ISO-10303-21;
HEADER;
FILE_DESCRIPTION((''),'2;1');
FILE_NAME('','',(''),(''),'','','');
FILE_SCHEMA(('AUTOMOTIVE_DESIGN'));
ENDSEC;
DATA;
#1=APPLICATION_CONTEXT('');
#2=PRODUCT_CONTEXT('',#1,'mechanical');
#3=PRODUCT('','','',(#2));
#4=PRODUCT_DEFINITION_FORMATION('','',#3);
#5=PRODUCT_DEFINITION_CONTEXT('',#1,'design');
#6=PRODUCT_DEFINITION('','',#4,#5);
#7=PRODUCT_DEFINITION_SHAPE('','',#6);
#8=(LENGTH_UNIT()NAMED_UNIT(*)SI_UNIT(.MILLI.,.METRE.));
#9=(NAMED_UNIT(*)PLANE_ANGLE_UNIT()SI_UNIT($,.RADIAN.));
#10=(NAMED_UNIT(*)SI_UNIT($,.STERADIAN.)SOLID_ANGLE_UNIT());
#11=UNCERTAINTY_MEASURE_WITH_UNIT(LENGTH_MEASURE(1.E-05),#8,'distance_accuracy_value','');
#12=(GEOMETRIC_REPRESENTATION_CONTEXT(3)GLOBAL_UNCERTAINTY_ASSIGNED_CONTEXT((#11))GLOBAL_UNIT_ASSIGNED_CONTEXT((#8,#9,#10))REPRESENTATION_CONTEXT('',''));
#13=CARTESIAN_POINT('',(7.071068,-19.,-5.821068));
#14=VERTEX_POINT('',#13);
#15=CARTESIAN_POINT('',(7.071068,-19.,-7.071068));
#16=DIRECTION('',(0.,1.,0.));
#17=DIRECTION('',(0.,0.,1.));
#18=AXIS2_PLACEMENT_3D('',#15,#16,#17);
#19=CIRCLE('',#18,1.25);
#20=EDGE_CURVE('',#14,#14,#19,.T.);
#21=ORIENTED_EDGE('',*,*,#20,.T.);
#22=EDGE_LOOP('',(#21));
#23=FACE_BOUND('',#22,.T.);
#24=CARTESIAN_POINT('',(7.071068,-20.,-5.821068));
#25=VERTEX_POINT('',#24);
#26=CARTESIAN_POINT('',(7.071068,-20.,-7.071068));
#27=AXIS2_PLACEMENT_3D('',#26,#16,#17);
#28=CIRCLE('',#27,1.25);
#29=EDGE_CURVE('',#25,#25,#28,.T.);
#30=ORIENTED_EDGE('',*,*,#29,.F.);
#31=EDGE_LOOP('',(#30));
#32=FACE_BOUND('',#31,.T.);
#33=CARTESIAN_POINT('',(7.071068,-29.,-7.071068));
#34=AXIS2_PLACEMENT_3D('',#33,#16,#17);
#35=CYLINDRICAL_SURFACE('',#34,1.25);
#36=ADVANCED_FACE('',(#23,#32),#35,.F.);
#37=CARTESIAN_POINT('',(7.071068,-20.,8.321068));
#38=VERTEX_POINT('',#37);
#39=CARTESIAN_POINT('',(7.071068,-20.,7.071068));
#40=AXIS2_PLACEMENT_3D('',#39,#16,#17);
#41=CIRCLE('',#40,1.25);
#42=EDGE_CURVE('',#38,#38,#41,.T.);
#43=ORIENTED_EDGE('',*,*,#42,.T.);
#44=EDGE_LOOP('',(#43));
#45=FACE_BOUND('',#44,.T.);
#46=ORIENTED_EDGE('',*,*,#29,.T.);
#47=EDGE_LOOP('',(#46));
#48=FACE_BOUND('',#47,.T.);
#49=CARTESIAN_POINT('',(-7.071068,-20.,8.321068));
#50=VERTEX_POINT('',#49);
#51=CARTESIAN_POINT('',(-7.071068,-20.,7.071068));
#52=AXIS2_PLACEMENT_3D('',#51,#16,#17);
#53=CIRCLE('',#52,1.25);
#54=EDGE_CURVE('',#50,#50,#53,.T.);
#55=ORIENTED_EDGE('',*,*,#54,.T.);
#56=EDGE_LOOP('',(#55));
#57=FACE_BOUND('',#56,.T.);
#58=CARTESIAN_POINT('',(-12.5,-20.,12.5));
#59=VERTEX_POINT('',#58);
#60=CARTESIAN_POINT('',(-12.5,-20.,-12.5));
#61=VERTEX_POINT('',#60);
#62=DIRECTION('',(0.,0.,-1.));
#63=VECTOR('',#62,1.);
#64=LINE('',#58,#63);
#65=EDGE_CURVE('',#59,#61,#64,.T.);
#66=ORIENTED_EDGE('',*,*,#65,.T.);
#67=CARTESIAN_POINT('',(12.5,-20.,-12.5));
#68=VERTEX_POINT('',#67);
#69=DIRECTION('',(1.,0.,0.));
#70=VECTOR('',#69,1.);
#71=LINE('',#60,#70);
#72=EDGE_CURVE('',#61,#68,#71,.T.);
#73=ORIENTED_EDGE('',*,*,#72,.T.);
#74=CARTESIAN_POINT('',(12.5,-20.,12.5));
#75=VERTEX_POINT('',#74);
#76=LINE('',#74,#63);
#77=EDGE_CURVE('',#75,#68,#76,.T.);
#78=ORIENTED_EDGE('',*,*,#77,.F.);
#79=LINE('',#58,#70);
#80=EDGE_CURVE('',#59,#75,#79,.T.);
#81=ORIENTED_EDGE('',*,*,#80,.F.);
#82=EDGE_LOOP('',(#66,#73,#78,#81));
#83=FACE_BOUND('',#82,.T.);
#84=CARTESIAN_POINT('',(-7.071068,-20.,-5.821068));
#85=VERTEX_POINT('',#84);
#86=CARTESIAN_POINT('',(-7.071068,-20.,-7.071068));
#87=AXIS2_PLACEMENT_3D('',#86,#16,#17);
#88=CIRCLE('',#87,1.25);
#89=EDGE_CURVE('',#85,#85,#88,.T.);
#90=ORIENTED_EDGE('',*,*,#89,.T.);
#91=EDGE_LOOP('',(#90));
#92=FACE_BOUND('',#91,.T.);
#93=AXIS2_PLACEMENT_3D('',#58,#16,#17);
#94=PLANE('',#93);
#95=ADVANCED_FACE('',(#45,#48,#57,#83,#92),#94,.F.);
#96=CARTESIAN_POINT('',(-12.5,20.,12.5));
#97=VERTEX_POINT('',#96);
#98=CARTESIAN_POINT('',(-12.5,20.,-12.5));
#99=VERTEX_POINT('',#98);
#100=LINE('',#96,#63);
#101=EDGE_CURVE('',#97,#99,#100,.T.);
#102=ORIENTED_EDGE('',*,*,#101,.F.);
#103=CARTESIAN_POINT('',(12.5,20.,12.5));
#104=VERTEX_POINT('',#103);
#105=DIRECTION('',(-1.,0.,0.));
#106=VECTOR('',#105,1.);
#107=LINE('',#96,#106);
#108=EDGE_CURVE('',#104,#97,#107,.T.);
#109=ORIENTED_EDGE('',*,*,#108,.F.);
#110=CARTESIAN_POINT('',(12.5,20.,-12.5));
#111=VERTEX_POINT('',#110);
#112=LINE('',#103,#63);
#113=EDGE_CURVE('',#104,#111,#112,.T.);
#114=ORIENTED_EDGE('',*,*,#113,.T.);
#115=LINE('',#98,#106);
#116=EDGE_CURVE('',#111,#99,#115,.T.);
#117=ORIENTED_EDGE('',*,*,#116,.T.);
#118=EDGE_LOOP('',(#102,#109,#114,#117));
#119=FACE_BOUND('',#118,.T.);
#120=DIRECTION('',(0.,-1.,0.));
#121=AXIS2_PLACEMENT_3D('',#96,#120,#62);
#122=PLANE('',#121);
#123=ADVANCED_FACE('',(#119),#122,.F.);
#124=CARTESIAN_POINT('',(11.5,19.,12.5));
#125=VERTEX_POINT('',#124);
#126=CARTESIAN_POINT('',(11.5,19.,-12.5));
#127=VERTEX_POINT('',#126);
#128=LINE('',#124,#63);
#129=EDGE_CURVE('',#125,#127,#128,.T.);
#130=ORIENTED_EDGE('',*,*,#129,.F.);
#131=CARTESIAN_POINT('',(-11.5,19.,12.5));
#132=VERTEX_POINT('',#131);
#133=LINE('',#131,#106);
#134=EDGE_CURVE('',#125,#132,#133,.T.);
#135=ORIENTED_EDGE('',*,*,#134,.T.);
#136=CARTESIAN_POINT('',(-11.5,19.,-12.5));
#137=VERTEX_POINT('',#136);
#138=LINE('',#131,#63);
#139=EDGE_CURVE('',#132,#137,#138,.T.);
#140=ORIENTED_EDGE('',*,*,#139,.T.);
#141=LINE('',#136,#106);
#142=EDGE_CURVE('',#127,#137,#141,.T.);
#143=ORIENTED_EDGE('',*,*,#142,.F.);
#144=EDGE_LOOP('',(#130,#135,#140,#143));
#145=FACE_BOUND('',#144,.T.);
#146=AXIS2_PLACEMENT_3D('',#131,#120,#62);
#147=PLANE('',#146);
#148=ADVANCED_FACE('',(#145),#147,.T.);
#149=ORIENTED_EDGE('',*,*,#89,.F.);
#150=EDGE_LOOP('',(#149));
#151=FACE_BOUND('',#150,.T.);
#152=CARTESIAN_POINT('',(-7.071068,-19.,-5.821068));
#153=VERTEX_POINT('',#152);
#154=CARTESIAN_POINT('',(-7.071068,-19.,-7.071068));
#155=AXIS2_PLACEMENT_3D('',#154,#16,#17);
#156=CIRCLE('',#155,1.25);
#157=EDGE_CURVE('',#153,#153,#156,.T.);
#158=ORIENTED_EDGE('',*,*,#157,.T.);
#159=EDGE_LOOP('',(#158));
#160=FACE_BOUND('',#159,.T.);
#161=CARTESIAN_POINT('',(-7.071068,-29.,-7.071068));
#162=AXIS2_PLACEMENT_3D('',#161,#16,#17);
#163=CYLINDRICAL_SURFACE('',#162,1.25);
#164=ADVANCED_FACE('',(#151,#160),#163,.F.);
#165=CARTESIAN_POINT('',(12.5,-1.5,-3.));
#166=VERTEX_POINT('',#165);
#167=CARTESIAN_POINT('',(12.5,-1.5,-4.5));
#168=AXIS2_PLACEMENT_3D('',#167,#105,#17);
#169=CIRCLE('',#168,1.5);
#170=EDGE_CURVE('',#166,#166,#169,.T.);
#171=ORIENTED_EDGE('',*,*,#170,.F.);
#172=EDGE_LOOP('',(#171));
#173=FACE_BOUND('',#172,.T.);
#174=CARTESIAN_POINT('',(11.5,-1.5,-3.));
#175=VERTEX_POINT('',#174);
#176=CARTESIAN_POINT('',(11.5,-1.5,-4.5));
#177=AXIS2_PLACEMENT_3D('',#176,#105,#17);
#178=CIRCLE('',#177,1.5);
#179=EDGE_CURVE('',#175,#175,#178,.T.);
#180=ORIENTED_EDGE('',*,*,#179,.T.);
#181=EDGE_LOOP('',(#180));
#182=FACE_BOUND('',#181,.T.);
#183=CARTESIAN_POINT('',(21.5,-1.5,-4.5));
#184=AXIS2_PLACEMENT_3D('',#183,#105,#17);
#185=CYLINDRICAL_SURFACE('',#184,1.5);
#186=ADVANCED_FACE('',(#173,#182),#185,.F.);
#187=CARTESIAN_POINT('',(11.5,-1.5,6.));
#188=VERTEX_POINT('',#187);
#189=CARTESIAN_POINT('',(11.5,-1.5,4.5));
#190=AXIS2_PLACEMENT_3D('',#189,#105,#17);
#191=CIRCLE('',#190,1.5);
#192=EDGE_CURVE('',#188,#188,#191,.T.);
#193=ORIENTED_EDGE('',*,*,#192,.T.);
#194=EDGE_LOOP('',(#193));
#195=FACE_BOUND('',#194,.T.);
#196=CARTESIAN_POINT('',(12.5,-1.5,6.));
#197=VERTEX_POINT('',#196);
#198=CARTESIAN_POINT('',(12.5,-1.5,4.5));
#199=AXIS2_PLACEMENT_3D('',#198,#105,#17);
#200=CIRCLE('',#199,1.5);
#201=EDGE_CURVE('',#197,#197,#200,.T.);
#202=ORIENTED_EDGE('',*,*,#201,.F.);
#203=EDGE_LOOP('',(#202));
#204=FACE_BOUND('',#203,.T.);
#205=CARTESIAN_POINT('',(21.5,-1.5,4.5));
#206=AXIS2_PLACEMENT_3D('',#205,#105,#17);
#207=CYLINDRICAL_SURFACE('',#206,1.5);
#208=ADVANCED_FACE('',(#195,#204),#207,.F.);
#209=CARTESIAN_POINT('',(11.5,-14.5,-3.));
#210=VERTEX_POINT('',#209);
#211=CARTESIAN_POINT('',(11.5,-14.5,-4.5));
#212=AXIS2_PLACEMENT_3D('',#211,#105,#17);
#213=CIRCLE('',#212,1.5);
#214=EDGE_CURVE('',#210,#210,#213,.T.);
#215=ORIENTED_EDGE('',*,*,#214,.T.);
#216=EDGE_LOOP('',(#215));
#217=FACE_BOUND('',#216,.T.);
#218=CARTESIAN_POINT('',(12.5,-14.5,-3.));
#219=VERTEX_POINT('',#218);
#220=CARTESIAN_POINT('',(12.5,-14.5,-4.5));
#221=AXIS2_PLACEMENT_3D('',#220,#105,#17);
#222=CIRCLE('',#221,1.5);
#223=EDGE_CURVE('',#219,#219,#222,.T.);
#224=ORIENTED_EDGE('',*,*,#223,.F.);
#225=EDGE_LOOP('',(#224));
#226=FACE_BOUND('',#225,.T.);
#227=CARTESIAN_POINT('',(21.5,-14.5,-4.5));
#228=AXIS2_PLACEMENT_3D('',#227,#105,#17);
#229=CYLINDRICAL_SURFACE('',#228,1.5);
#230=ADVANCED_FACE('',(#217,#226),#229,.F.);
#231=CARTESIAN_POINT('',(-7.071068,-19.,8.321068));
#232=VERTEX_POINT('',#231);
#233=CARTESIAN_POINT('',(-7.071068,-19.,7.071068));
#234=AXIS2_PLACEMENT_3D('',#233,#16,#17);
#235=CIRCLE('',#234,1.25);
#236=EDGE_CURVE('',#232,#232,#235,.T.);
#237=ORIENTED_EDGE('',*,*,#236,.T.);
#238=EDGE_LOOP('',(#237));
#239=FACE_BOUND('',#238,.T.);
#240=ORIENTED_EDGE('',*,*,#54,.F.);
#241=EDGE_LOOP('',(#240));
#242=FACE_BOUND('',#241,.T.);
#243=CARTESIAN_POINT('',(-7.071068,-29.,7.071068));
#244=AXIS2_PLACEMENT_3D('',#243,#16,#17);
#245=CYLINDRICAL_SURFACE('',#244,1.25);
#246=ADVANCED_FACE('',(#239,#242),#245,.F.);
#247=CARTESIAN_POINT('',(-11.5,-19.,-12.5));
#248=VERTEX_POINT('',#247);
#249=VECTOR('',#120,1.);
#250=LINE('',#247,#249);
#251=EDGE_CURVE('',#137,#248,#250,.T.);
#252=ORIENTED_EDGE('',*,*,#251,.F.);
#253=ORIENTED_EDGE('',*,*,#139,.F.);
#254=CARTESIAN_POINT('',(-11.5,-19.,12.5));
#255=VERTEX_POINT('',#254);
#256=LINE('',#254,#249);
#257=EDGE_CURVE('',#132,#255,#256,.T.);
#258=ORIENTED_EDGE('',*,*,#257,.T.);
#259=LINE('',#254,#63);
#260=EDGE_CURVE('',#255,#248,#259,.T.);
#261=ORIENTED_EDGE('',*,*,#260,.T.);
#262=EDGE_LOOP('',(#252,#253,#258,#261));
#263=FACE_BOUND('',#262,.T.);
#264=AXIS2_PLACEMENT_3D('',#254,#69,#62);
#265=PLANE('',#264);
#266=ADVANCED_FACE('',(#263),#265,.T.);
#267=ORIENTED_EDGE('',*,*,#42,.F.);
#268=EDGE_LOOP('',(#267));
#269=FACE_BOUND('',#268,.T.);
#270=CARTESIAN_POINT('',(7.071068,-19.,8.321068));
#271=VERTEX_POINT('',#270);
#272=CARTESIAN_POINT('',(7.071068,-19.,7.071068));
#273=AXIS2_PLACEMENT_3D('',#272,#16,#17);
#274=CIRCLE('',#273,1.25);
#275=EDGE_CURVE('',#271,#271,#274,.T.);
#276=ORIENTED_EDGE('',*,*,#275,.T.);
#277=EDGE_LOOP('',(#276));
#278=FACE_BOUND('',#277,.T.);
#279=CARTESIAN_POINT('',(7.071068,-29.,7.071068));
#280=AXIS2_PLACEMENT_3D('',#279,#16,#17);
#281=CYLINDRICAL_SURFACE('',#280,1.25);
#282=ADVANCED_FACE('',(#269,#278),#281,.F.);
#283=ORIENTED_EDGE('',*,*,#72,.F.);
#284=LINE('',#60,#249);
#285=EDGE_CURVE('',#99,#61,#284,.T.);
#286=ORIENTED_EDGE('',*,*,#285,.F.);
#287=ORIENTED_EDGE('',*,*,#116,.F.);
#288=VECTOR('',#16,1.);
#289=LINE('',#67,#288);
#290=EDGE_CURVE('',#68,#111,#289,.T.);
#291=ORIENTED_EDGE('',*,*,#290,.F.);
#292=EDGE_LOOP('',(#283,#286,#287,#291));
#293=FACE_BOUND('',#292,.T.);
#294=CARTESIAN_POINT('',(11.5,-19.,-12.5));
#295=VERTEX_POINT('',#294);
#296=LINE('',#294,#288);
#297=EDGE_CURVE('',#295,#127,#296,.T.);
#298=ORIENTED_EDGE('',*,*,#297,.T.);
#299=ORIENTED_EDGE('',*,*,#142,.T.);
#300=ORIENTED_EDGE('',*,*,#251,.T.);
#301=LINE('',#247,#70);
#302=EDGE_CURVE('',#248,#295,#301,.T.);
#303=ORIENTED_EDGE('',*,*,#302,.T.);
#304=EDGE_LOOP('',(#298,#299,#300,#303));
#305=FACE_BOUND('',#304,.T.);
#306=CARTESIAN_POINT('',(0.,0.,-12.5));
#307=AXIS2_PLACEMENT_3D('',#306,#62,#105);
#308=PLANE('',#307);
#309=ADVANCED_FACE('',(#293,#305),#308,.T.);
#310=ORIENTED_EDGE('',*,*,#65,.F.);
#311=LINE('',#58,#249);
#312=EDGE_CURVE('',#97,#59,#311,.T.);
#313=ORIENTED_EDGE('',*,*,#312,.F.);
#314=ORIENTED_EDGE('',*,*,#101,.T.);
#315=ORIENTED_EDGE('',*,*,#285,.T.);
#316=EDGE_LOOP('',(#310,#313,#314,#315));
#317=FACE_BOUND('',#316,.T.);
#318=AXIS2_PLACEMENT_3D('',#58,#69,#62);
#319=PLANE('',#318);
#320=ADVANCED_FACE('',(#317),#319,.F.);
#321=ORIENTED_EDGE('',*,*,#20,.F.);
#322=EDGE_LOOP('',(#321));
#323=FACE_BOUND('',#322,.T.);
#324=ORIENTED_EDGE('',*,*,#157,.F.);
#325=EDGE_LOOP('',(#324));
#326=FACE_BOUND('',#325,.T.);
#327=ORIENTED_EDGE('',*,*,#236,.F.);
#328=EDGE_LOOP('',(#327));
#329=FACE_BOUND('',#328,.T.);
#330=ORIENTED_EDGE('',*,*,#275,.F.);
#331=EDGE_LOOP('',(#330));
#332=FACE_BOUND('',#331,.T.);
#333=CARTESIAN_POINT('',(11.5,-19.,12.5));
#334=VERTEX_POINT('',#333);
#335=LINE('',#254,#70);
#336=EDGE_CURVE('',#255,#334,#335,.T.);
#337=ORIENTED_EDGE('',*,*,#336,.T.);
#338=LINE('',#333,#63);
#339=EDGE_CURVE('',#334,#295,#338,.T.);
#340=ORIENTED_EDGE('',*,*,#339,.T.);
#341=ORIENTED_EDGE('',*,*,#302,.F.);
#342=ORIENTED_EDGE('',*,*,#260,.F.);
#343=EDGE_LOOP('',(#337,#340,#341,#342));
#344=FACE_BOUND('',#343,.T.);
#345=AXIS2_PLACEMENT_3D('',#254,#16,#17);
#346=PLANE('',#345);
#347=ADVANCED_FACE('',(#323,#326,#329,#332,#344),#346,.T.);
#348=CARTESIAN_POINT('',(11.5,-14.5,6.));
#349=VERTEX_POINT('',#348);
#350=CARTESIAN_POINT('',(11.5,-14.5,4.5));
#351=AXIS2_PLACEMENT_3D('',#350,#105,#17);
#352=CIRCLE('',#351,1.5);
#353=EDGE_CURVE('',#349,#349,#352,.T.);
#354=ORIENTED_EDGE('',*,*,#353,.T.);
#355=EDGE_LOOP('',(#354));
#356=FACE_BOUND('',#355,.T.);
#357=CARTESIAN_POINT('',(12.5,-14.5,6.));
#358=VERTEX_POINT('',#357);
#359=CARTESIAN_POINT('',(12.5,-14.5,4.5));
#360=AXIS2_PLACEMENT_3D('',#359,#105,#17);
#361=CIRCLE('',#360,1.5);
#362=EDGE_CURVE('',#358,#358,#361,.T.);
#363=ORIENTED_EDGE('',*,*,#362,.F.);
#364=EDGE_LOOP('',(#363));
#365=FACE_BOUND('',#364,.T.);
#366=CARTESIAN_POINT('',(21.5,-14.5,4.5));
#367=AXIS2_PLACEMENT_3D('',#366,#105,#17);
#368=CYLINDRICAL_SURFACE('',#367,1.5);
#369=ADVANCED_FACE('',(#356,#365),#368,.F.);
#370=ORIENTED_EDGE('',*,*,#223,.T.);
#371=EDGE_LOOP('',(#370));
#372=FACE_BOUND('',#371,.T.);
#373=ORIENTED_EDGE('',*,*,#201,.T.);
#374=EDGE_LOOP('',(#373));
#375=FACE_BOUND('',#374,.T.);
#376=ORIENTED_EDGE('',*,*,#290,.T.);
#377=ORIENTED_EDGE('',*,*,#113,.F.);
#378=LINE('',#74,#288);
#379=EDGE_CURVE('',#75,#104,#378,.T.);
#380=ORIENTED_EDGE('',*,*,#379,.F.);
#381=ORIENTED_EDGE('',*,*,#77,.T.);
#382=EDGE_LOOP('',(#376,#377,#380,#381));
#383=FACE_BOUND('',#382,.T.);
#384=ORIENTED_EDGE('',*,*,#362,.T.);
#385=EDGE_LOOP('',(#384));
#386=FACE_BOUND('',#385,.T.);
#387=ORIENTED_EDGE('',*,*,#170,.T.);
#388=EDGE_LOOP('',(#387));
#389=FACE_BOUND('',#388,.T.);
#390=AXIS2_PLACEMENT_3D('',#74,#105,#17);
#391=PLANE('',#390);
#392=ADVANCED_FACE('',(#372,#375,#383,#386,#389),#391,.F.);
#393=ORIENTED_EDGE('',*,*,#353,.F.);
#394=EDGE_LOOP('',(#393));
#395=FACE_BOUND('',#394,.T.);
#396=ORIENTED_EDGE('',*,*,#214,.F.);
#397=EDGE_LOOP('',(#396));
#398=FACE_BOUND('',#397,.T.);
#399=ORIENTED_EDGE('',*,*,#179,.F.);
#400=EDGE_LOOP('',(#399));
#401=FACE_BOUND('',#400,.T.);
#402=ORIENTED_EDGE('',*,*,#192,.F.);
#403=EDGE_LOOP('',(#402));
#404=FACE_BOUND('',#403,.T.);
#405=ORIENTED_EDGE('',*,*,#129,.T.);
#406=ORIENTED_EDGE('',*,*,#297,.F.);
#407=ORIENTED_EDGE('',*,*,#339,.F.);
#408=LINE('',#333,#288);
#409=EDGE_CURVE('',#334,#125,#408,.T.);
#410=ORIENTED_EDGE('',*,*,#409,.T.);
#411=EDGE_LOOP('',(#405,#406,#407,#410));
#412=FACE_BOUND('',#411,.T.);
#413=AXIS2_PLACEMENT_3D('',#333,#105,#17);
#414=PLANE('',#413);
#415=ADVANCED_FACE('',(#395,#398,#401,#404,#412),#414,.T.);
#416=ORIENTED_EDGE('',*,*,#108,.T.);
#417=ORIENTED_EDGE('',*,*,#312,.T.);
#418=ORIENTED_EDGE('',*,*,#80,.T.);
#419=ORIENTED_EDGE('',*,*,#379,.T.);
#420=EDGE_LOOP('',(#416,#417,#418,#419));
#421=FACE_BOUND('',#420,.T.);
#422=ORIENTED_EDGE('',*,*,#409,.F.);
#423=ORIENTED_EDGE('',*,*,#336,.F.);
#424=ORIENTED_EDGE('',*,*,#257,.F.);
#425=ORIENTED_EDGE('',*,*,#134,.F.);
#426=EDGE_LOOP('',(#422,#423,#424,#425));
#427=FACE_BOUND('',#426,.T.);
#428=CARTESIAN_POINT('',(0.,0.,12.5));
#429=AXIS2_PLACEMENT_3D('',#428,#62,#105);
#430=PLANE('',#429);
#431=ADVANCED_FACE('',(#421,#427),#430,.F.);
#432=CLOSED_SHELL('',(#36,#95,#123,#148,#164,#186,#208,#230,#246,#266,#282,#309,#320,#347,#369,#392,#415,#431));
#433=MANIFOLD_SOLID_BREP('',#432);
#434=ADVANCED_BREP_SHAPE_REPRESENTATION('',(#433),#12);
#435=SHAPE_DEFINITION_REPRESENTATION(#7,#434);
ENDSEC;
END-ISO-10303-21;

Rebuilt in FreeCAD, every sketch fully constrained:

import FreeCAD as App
import Part
import Sketcher
from FreeCAD import Vector
Q = App.Units.Quantity

doc = App.newDocument("Part")
body = doc.addObject("PartDesign::Body", "Body")

sketch1 = body.newObject("Sketcher::SketchObject", "Sketch")
sketch1.AttachmentSupport = (doc.getObject("XY_Plane"), [""])
sketch1.MapMode = "FlatFace"
sketch1.addGeometry([
    Part.LineSegment(Vector(-12.5, 20, 0), Vector(-12.5, -20, 0)),
    Part.LineSegment(Vector(-12.5, -20, 0), Vector(12.5, -20, 0)),
    Part.LineSegment(Vector(12.5, -20, 0), Vector(12.5, 20, 0)),
    Part.LineSegment(Vector(12.5, 20, 0), Vector(-12.5, 20, 0)),
    Part.LineSegment(Vector(11.5, -19, 0), Vector(-11.5, -19, 0)),
    Part.LineSegment(Vector(-11.5, -19, 0), Vector(-11.5, 19, 0)),
    Part.LineSegment(Vector(-11.5, 19, 0), Vector(11.5, 19, 0)),
    Part.LineSegment(Vector(11.5, 19, 0), Vector(11.5, -19, 0)),
], False)
sketch1.addConstraint([
    Sketcher.Constraint("Coincident", 0, 2, 1, 1),
    Sketcher.Constraint("Coincident", 1, 2, 2, 1),
    Sketcher.Constraint("Coincident", 2, 2, 3, 1),
    Sketcher.Constraint("Coincident", 3, 2, 0, 1),
    Sketcher.Constraint("Coincident", 4, 2, 5, 1),
    Sketcher.Constraint("Coincident", 5, 2, 6, 1),
    Sketcher.Constraint("Coincident", 6, 2, 7, 1),
    Sketcher.Constraint("Coincident", 7, 2, 4, 1),
    Sketcher.Constraint("Vertical", 0),
    Sketcher.Constraint("Horizontal", 1),
    Sketcher.Constraint("Vertical", 2),
    Sketcher.Constraint("Horizontal", 3),
    Sketcher.Constraint("Horizontal", 4),
    Sketcher.Constraint("Vertical", 5),
    Sketcher.Constraint("Horizontal", 6),
    Sketcher.Constraint("Vertical", 7),
    Sketcher.Constraint("Symmetric", 0, 2, 2, 2, -1, 1),
    Sketcher.Constraint("Symmetric", 4, 2, 6, 2, -1, 1),
    Sketcher.Constraint("DistanceX", 1, 1, 1, 2, Q("25 mm")),
    Sketcher.Constraint("DistanceX", 4, 2, 4, 1, Q("23 mm")),
    Sketcher.Constraint("DistanceY", 0, 2, 0, 1, Q("40 mm")),
    Sketcher.Constraint("DistanceY", 5, 1, 5, 2, Q("38 mm")),
])
pad1 = body.newObject("PartDesign::Pad", "Pad")
pad1.Profile = sketch1
pad1.Length = 25
pad1.Midplane = True

sketch2 = body.newObject("Sketcher::SketchObject", "Sketch001")
sketch2.AttachmentSupport = (doc.getObject("XZ_Plane"), [""])
sketch2.MapMode = "FlatFace"
sketch2.AttachmentOffset = App.Placement(Vector(0, 0, 19), App.Rotation())
sketch2.addGeometry([
    Part.Circle(Vector(7.071068, 7.071068, 0), Vector(0, 0, 1), 1.25),
    Part.Circle(Vector(7.071068, -7.071068, 0), Vector(0, 0, 1), 1.25),
    Part.Circle(Vector(-7.071068, -7.071068, 0), Vector(0, 0, 1), 1.25),
    Part.Circle(Vector(-7.071068, 7.071068, 0), Vector(0, 0, 1), 1.25),
], False)
sketch2.addConstraint([
    Sketcher.Constraint("Equal", 0, 1),
    Sketcher.Constraint("Equal", 1, 2),
    Sketcher.Constraint("Equal", 2, 3),
    Sketcher.Constraint("Symmetric", 0, 3, 2, 3, -1, 1),
    Sketcher.Constraint("Symmetric", 1, 3, 3, 3, -1, 1),
    Sketcher.Constraint("Symmetric", 1, 3, 2, 3, -2),
    Sketcher.Constraint("Diameter", 0, Q("2.5 mm")),
    Sketcher.Constraint("DistanceX", -1, 1, 0, 3, Q("7.071068 mm")),
    Sketcher.Constraint("DistanceY", -1, 1, 0, 3, Q("7.071068 mm")),
])
pocket1 = body.newObject("PartDesign::Pocket", "Pocket")
pocket1.Profile = sketch2
pocket1.Length = 10
pocket1.Reversed = True

sketch3 = body.newObject("Sketcher::SketchObject", "Sketch002")
sketch3.AttachmentSupport = (doc.getObject("YZ_Plane"), [""])
sketch3.MapMode = "FlatFace"
sketch3.AttachmentOffset = App.Placement(Vector(0, 0, 11.5), App.Rotation())
sketch3.addGeometry([
    Part.Circle(Vector(-14.5, 4.5, 0), Vector(0, 0, 1), 1.5),
    Part.Circle(Vector(-14.5, -4.5, 0), Vector(0, 0, 1), 1.5),
    Part.Circle(Vector(-1.5, -4.5, 0), Vector(0, 0, 1), 1.5),
    Part.Circle(Vector(-1.5, 4.5, 0), Vector(0, 0, 1), 1.5),
], False)
sketch3.addConstraint([
    Sketcher.Constraint("Equal", 0, 1),
    Sketcher.Constraint("Equal", 1, 2),
    Sketcher.Constraint("Equal", 2, 3),
    Sketcher.Constraint("Symmetric", 0, 3, 1, 3, -1),
    Sketcher.Constraint("Symmetric", 2, 3, 3, 3, -1),
    Sketcher.Constraint("Horizontal", 1, 3, 2, 3),
    Sketcher.Constraint("Diameter", 0, Q("3 mm")),
    Sketcher.Constraint("DistanceY", 1, 3, 0, 3, Q("9 mm")),
    Sketcher.Constraint("DistanceX", 1, 3, 2, 3, Q("13 mm")),
    Sketcher.Constraint("DistanceX", 0, 3, -1, 1, Q("14.5 mm")),
])
pocket2 = body.newObject("PartDesign::Pocket", "Pocket001")
pocket2.Profile = sketch3
pocket2.Length = 10
pocket2.Reversed = True

doc.recompute()
